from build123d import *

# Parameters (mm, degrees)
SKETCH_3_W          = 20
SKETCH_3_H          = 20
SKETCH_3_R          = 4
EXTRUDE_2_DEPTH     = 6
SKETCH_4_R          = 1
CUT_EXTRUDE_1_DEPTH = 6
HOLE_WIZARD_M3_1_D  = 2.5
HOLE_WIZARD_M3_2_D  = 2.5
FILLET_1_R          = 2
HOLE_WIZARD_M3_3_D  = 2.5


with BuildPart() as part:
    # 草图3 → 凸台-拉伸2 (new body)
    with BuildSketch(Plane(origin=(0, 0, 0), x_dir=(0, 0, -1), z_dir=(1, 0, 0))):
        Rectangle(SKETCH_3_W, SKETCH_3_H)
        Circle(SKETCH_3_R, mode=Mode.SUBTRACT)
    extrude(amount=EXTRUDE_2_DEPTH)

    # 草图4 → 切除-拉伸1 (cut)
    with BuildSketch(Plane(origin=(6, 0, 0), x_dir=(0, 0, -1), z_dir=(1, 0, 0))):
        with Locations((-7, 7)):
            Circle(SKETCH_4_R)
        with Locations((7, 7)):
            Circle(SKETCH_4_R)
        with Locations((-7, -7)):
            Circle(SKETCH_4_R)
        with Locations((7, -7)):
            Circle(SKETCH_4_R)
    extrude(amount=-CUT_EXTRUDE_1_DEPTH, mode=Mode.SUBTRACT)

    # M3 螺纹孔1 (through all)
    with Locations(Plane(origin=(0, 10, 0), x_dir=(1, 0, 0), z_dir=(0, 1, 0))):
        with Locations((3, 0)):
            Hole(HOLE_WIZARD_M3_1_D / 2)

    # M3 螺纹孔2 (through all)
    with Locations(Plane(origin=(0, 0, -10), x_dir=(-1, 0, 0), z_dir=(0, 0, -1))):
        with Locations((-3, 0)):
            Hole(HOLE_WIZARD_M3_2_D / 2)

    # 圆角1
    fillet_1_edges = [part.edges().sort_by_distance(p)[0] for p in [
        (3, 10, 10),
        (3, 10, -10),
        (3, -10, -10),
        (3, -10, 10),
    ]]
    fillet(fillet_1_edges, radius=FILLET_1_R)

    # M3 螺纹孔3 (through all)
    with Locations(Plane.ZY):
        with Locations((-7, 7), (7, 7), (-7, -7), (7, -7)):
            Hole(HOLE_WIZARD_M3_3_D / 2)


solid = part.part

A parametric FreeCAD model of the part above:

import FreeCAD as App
import Part
import Sketcher


def edges_at(feature, points):
    """Names of the edges that pass closest to the given points."""
    edges = feature.Shape.Edges
    near = lambda p: min(range(len(edges)), key=lambda i: edges[i].distToShape(Part.Vertex(*p))[0])
    return sorted({f"Edge{near(p) + 1}" for p in points})


def add_polygon(sketch, points):
    """Adds a closed chain of lines whose ends are joined by coincident constraints."""
    first, n = sketch.GeometryCount, len(points)
    for a, b in zip(points, points[1:] + points[:1]):
        sketch.addGeometry(Part.LineSegment(App.Vector(*a, 0), App.Vector(*b, 0)), False)
    for i in range(n):
        sketch.addConstraint(Sketcher.Constraint("Coincident", first + i, 2, first + (i + 1) % n, 1))

doc = App.newDocument("Part")
body = doc.addObject("PartDesign::Body", "Body")

# Sketch on YZ plane
sketch1 = body.newObject("Sketcher::SketchObject", "Sketch")
sketch1.AttachmentSupport = (doc.getObject("YZ_Plane"), [""])
sketch1.MapMode = "FlatFace"
add_polygon(sketch1, [(10, 10), (-10, 10), (-10, -10), (10, -10)])  # lines 0-3
sketch1.addGeometry(Part.Circle(App.Vector(0, 0, 0), App.Vector(0, 0, 1), 4), False)  # 4
sketch1.addConstraint([
    Sketcher.Constraint("Horizontal", 0),
    Sketcher.Constraint("Vertical", 1),
    Sketcher.Constraint("Horizontal", 2),
    Sketcher.Constraint("Vertical", 3),
    Sketcher.Constraint("Coincident", 4, 3, -1, 1),
    Sketcher.Constraint("Symmetric", 0, 2, 2, 2, -1, 1),
    Sketcher.Constraint("Equal", 2, 1),
    Sketcher.Constraint("Diameter", 4, 8.0),
    Sketcher.Constraint("DistanceX", 0, 2, 0, 1, 20.0),
])
pad1 = body.newObject("PartDesign::Pad", "Pad")
pad1.Profile = sketch1
pad1.Length = 6

# Sketch on YZ plane
sketch2 = body.newObject("Sketcher::SketchObject", "Sketch001")
sketch2.AttachmentSupport = (doc.getObject("YZ_Plane"), [""])
sketch2.MapMode = "FlatFace"
sketch2.AttachmentOffset = App.Placement(App.Vector(0, 0, 6), App.Rotation())
sketch2.addGeometry([
    Part.Circle(App.Vector(7, 7, 0), App.Vector(0, 0, 1), 1),
    Part.Circle(App.Vector(7, -7, 0), App.Vector(0, 0, 1), 1),
    Part.Circle(App.Vector(-7, 7, 0), App.Vector(0, 0, 1), 1),
    Part.Circle(App.Vector(-7, -7, 0), App.Vector(0, 0, 1), 1),
], False)
sketch2.addConstraint([
    Sketcher.Constraint("Equal", 0, 1),
    Sketcher.Constraint("Equal", 1, 2),
    Sketcher.Constraint("Equal", 2, 3),
    Sketcher.Constraint("Symmetric", 1, 3, 2, 3, -1, 1),
    Sketcher.Constraint("Symmetric", 0, 3, 3, 3, -1, 1),
    Sketcher.Constraint("Symmetric", 0, 3, 2, 3, -2),
    Sketcher.Constraint("Diameter", 0, 2.0),
    Sketcher.Constraint("DistanceX", -1, 1, 0, 3, 7.0),
    Sketcher.Constraint("DistanceY", -1, 1, 0, 3, 7.0),
])
pocket1 = body.newObject("PartDesign::Pocket", "Pocket")
pocket1.Profile = sketch2
pocket1.Length = 6

# Sketch on XZ plane
sketch3 = body.newObject("Sketcher::SketchObject", "Sketch002")
sketch3.AttachmentSupport = (doc.getObject("XZ_Plane"), [""])
sketch3.MapMode = "FlatFace"
sketch3.AttachmentOffset = App.Placement(App.Vector(0, 0, -10), App.Rotation())
sketch3.addGeometry(Part.Circle(App.Vector(3, 0, 0), App.Vector(0, 0, 1), 1.25), False)
sketch3.addConstraint([
    Sketcher.Constraint("PointOnObject", 0, 3, -1),
    Sketcher.Constraint("Diameter", 0, 2.5),
    Sketcher.Constraint("DistanceX", -1, 1, 0, 3, 3.0),
])
doc.recompute()
hole = body.newObject("PartDesign::Hole", "Hole")
hole.Profile = sketch3
hole.ThreadType = "None"
hole.Diameter = 2.5
hole.DepthType = "ThroughAll"
hole.Reversed = True

# Sketch on XY plane
sketch4 = body.newObject("Sketcher::SketchObject", "Sketch003")
sketch4.AttachmentSupport = (doc.getObject("XY_Plane"), [""])
sketch4.MapMode = "FlatFace"
sketch4.AttachmentOffset = App.Placement(App.Vector(0, 0, -10), App.Rotation())
sketch4.addGeometry(Part.Circle(App.Vector(3, 0, 0), App.Vector(0, 0, 1), 1.25), False)
sketch4.addConstraint([
    Sketcher.Constraint("PointOnObject", 0, 3, -1),
    Sketcher.Constraint("Diameter", 0, 2.5),
    Sketcher.Constraint("DistanceX", -1, 1, 0, 3, 3.0),
])
doc.recompute()
hole2 = body.newObject("PartDesign::Hole", "Hole001")
hole2.Profile = sketch4
hole2.ThreadType = "None"
hole2.Diameter = 2.5
hole2.DepthType = "ThroughAll"
hole2.Reversed = True
doc.recompute()

fillet = body.newObject("PartDesign::Fillet", "Fillet")
fillet.Base = (hole2, edges_at(hole2, [
    (3, 10, 10),
    (3, 10, -10),
    (3, -10, -10),
    (3, -10, 10),
]))
fillet.Radius = 2

# Sketch on YZ plane
sketch5 = body.newObject("Sketcher::SketchObject", "Sketch004")
sketch5.AttachmentSupport = (doc.getObject("YZ_Plane"), [""])
sketch5.MapMode = "FlatFace"
sketch5.addGeometry([
    Part.Circle(App.Vector(7, -7, 0), App.Vector(0, 0, 1), 1.25),
    Part.Circle(App.Vector(7, 7, 0), App.Vector(0, 0, 1), 1.25),
    Part.Circle(App.Vector(-7, -7, 0), App.Vector(0, 0, 1), 1.25),
    Part.Circle(App.Vector(-7, 7, 0), App.Vector(0, 0, 1), 1.25),
], False)
sketch5.addConstraint([
    Sketcher.Constraint("Equal", 0, 1),
    Sketcher.Constraint("Equal", 1, 2),
    Sketcher.Constraint("Equal", 2, 3),
    Sketcher.Constraint("Symmetric", 1, 3, 2, 3, -1, 1),
    Sketcher.Constraint("Symmetric", 0, 3, 3, 3, -1, 1),
    Sketcher.Constraint("Symmetric", 0, 3, 2, 3, -2),
    Sketcher.Constraint("Diameter", 0, 2.5),
    Sketcher.Constraint("DistanceX", -1, 1, 0, 3, 7.0),
    Sketcher.Constraint("DistanceY", 0, 3, -1, 1, 7.0),
])
doc.recompute()
hole3 = body.newObject("PartDesign::Hole", "Hole002")
hole3.Profile = sketch5
hole3.ThreadType = "None"
hole3.Diameter = 2.5
hole3.DepthType = "ThroughAll"
hole3.Reversed = True

doc.recompute()
